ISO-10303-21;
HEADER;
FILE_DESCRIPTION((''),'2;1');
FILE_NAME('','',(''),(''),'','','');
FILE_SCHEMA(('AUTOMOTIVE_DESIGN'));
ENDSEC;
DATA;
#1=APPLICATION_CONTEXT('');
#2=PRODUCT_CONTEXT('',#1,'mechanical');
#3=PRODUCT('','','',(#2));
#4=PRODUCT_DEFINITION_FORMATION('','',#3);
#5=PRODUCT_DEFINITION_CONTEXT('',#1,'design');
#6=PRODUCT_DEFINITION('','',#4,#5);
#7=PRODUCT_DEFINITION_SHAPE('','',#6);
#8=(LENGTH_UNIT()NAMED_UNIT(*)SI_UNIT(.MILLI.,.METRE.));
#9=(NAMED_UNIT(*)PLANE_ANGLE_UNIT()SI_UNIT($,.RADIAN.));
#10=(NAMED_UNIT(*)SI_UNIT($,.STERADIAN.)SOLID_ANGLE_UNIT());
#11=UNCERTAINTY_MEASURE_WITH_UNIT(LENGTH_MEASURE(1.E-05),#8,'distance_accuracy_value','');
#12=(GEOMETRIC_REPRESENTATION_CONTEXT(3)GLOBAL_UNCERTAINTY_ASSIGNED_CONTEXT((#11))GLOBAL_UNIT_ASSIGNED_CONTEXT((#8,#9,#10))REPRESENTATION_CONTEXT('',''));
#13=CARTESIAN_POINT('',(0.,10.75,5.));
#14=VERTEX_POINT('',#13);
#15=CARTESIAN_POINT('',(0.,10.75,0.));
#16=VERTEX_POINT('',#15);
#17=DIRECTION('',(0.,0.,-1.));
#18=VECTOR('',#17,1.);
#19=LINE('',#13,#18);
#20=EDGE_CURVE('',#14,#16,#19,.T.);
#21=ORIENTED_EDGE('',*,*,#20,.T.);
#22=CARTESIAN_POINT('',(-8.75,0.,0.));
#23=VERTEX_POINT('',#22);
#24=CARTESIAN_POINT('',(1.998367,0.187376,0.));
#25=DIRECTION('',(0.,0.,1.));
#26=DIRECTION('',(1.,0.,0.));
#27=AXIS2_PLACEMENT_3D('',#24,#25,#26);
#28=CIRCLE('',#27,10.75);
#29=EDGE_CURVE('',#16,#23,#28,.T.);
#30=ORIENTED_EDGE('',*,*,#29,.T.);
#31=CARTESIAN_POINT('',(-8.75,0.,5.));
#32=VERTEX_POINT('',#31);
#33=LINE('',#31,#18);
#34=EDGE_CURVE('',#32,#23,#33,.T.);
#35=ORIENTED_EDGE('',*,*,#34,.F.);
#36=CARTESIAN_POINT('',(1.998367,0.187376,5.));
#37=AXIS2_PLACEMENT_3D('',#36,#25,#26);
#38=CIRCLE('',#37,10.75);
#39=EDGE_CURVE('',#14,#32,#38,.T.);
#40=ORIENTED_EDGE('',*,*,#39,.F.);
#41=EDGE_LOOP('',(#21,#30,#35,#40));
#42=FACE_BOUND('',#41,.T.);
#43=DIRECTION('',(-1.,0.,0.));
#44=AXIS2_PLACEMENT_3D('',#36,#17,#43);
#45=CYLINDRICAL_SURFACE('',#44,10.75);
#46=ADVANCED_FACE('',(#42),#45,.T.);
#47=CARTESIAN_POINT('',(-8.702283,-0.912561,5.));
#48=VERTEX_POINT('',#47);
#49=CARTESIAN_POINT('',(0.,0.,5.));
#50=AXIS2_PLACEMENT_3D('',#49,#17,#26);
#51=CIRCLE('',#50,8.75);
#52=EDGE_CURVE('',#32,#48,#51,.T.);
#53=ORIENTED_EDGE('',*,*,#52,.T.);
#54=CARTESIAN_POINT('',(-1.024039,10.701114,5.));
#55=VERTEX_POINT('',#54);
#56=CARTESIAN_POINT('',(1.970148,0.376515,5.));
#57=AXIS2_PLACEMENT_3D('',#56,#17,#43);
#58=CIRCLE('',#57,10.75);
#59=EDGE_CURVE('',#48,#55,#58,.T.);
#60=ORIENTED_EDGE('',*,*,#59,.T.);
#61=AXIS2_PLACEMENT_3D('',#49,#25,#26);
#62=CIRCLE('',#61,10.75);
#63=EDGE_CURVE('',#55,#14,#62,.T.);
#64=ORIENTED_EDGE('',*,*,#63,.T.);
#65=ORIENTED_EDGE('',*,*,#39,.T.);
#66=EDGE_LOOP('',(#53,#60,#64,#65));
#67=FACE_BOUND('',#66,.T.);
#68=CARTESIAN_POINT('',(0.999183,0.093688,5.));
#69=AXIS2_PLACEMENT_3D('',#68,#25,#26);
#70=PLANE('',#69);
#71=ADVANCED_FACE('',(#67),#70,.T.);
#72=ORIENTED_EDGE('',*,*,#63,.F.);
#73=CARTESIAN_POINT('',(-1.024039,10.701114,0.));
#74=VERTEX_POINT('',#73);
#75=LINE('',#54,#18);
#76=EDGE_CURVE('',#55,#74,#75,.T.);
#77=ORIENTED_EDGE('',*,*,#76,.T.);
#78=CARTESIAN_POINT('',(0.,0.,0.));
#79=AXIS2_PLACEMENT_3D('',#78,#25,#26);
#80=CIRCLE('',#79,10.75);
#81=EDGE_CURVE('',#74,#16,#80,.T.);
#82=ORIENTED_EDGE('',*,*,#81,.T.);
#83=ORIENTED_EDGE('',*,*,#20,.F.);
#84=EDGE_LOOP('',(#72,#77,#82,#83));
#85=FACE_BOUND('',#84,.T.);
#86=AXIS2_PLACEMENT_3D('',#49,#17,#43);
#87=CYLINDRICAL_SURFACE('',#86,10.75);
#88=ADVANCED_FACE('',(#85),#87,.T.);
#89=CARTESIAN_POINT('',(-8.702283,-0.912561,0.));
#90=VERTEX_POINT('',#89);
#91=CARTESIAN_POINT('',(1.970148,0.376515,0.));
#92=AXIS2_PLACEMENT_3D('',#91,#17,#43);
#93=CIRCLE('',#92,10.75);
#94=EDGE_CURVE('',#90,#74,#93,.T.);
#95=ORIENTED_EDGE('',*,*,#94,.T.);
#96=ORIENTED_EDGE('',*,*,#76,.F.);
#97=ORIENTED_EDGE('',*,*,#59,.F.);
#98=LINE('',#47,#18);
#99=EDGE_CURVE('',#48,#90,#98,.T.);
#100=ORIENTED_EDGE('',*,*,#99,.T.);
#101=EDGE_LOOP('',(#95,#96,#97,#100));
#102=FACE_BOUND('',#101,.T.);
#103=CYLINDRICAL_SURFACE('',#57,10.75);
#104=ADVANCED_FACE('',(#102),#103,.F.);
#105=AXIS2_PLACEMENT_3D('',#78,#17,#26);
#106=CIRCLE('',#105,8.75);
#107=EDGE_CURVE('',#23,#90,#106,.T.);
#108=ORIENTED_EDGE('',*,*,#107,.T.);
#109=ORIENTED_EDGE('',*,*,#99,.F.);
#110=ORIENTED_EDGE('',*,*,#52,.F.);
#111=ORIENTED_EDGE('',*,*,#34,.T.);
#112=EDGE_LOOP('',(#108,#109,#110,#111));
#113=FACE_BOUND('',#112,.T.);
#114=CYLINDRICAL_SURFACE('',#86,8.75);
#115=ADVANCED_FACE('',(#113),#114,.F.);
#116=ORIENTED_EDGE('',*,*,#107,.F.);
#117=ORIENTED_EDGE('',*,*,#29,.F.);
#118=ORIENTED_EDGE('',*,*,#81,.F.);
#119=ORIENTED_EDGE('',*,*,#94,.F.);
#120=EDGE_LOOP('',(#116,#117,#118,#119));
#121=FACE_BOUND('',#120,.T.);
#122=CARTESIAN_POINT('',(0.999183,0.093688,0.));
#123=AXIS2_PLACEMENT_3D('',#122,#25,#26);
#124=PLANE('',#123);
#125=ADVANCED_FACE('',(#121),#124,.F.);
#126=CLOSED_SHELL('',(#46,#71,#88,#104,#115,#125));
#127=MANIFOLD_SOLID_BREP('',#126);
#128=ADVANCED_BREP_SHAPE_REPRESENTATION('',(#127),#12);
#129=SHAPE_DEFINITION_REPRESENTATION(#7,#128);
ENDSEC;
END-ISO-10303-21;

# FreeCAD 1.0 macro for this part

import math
import FreeCAD as App
import Part
import Sketcher
from FreeCAD import Vector
Q = App.Units.Quantity

doc = App.newDocument("Part")
body = doc.addObject("PartDesign::Body", "Body")

# Sketch on XY plane
sketch1 = body.newObject("Sketcher::SketchObject", "Sketch")
sketch1.AttachmentSupport = (doc.getObject("XY_Plane"), [""])
sketch1.MapMode = "FlatFace"
sketch1.addGeometry(Part.ArcOfCircle(Part.Circle(Vector(0, 0, 0), Vector(0, 0, 1), 8.75), math.radians(-174.013582), math.radians(180)), False)
sketch1.addGeometry(Part.ArcOfCircle(Part.Circle(Vector(1.970148, 0.376515, 0), Vector(0, 0, 1), 10.75), math.radians(106.17243), math.radians(186.887143)), False)
sketch1.addGeometry(Part.ArcOfCircle(Part.Circle(Vector(0, 0, 0), Vector(0, 0, 1), 10.75), math.radians(95.466252), math.radians(450)), False)
sketch1.addGeometry(Part.ArcOfCircle(Part.Circle(Vector(1.998367, 0.187376, 0), Vector(0, 0, 1), 10.75), math.radians(100.713294), math.radians(180.998734)), False)
sketch1.addConstraint(Sketcher.Constraint("Coincident", 0, 1, 1, 2))
sketch1.addConstraint(Sketcher.Constraint("Coincident", 1, 1, 2, 1))
sketch1.addConstraint(Sketcher.Constraint("Coincident", 2, 2, 3, 1))
sketch1.addConstraint(Sketcher.Constraint("Coincident", 3, 2, 0, 2))
sketch1.addConstraint(Sketcher.Constraint("Coincident", 0, 3, -1, 1))
sketch1.addConstraint(Sketcher.Constraint("Coincident", 2, 3, -1, 1))
sketch1.addConstraint(Sketcher.Constraint("Equal", 1, 2))
sketch1.addConstraint(Sketcher.Constraint("Equal", 2, 3))
sketch1.addConstraint(Sketcher.Constraint("PointOnObject", 2, 2, -2))
sketch1.addConstraint(Sketcher.Constraint("PointOnObject", 3, 2, -1))
sketch1.addConstraint(Sketcher.Constraint("Radius", 0, Q("8.75 mm")))
sketch1.addConstraint(Sketcher.Constraint("Radius", 1, Q("10.75 mm")))
sketch1.addConstraint(Sketcher.Constraint("DistanceY", 1, 3, 1, 1, Q("10.324599 mm")))
sketch1.addConstraint(Sketcher.Constraint("DistanceY", 0, 1, -1, 1, Q("0.912561 mm")))
pad1 = body.newObject("PartDesign::Pad", "Pad")
pad1.Profile = sketch1
pad1.Length = 5

doc.recompute()
